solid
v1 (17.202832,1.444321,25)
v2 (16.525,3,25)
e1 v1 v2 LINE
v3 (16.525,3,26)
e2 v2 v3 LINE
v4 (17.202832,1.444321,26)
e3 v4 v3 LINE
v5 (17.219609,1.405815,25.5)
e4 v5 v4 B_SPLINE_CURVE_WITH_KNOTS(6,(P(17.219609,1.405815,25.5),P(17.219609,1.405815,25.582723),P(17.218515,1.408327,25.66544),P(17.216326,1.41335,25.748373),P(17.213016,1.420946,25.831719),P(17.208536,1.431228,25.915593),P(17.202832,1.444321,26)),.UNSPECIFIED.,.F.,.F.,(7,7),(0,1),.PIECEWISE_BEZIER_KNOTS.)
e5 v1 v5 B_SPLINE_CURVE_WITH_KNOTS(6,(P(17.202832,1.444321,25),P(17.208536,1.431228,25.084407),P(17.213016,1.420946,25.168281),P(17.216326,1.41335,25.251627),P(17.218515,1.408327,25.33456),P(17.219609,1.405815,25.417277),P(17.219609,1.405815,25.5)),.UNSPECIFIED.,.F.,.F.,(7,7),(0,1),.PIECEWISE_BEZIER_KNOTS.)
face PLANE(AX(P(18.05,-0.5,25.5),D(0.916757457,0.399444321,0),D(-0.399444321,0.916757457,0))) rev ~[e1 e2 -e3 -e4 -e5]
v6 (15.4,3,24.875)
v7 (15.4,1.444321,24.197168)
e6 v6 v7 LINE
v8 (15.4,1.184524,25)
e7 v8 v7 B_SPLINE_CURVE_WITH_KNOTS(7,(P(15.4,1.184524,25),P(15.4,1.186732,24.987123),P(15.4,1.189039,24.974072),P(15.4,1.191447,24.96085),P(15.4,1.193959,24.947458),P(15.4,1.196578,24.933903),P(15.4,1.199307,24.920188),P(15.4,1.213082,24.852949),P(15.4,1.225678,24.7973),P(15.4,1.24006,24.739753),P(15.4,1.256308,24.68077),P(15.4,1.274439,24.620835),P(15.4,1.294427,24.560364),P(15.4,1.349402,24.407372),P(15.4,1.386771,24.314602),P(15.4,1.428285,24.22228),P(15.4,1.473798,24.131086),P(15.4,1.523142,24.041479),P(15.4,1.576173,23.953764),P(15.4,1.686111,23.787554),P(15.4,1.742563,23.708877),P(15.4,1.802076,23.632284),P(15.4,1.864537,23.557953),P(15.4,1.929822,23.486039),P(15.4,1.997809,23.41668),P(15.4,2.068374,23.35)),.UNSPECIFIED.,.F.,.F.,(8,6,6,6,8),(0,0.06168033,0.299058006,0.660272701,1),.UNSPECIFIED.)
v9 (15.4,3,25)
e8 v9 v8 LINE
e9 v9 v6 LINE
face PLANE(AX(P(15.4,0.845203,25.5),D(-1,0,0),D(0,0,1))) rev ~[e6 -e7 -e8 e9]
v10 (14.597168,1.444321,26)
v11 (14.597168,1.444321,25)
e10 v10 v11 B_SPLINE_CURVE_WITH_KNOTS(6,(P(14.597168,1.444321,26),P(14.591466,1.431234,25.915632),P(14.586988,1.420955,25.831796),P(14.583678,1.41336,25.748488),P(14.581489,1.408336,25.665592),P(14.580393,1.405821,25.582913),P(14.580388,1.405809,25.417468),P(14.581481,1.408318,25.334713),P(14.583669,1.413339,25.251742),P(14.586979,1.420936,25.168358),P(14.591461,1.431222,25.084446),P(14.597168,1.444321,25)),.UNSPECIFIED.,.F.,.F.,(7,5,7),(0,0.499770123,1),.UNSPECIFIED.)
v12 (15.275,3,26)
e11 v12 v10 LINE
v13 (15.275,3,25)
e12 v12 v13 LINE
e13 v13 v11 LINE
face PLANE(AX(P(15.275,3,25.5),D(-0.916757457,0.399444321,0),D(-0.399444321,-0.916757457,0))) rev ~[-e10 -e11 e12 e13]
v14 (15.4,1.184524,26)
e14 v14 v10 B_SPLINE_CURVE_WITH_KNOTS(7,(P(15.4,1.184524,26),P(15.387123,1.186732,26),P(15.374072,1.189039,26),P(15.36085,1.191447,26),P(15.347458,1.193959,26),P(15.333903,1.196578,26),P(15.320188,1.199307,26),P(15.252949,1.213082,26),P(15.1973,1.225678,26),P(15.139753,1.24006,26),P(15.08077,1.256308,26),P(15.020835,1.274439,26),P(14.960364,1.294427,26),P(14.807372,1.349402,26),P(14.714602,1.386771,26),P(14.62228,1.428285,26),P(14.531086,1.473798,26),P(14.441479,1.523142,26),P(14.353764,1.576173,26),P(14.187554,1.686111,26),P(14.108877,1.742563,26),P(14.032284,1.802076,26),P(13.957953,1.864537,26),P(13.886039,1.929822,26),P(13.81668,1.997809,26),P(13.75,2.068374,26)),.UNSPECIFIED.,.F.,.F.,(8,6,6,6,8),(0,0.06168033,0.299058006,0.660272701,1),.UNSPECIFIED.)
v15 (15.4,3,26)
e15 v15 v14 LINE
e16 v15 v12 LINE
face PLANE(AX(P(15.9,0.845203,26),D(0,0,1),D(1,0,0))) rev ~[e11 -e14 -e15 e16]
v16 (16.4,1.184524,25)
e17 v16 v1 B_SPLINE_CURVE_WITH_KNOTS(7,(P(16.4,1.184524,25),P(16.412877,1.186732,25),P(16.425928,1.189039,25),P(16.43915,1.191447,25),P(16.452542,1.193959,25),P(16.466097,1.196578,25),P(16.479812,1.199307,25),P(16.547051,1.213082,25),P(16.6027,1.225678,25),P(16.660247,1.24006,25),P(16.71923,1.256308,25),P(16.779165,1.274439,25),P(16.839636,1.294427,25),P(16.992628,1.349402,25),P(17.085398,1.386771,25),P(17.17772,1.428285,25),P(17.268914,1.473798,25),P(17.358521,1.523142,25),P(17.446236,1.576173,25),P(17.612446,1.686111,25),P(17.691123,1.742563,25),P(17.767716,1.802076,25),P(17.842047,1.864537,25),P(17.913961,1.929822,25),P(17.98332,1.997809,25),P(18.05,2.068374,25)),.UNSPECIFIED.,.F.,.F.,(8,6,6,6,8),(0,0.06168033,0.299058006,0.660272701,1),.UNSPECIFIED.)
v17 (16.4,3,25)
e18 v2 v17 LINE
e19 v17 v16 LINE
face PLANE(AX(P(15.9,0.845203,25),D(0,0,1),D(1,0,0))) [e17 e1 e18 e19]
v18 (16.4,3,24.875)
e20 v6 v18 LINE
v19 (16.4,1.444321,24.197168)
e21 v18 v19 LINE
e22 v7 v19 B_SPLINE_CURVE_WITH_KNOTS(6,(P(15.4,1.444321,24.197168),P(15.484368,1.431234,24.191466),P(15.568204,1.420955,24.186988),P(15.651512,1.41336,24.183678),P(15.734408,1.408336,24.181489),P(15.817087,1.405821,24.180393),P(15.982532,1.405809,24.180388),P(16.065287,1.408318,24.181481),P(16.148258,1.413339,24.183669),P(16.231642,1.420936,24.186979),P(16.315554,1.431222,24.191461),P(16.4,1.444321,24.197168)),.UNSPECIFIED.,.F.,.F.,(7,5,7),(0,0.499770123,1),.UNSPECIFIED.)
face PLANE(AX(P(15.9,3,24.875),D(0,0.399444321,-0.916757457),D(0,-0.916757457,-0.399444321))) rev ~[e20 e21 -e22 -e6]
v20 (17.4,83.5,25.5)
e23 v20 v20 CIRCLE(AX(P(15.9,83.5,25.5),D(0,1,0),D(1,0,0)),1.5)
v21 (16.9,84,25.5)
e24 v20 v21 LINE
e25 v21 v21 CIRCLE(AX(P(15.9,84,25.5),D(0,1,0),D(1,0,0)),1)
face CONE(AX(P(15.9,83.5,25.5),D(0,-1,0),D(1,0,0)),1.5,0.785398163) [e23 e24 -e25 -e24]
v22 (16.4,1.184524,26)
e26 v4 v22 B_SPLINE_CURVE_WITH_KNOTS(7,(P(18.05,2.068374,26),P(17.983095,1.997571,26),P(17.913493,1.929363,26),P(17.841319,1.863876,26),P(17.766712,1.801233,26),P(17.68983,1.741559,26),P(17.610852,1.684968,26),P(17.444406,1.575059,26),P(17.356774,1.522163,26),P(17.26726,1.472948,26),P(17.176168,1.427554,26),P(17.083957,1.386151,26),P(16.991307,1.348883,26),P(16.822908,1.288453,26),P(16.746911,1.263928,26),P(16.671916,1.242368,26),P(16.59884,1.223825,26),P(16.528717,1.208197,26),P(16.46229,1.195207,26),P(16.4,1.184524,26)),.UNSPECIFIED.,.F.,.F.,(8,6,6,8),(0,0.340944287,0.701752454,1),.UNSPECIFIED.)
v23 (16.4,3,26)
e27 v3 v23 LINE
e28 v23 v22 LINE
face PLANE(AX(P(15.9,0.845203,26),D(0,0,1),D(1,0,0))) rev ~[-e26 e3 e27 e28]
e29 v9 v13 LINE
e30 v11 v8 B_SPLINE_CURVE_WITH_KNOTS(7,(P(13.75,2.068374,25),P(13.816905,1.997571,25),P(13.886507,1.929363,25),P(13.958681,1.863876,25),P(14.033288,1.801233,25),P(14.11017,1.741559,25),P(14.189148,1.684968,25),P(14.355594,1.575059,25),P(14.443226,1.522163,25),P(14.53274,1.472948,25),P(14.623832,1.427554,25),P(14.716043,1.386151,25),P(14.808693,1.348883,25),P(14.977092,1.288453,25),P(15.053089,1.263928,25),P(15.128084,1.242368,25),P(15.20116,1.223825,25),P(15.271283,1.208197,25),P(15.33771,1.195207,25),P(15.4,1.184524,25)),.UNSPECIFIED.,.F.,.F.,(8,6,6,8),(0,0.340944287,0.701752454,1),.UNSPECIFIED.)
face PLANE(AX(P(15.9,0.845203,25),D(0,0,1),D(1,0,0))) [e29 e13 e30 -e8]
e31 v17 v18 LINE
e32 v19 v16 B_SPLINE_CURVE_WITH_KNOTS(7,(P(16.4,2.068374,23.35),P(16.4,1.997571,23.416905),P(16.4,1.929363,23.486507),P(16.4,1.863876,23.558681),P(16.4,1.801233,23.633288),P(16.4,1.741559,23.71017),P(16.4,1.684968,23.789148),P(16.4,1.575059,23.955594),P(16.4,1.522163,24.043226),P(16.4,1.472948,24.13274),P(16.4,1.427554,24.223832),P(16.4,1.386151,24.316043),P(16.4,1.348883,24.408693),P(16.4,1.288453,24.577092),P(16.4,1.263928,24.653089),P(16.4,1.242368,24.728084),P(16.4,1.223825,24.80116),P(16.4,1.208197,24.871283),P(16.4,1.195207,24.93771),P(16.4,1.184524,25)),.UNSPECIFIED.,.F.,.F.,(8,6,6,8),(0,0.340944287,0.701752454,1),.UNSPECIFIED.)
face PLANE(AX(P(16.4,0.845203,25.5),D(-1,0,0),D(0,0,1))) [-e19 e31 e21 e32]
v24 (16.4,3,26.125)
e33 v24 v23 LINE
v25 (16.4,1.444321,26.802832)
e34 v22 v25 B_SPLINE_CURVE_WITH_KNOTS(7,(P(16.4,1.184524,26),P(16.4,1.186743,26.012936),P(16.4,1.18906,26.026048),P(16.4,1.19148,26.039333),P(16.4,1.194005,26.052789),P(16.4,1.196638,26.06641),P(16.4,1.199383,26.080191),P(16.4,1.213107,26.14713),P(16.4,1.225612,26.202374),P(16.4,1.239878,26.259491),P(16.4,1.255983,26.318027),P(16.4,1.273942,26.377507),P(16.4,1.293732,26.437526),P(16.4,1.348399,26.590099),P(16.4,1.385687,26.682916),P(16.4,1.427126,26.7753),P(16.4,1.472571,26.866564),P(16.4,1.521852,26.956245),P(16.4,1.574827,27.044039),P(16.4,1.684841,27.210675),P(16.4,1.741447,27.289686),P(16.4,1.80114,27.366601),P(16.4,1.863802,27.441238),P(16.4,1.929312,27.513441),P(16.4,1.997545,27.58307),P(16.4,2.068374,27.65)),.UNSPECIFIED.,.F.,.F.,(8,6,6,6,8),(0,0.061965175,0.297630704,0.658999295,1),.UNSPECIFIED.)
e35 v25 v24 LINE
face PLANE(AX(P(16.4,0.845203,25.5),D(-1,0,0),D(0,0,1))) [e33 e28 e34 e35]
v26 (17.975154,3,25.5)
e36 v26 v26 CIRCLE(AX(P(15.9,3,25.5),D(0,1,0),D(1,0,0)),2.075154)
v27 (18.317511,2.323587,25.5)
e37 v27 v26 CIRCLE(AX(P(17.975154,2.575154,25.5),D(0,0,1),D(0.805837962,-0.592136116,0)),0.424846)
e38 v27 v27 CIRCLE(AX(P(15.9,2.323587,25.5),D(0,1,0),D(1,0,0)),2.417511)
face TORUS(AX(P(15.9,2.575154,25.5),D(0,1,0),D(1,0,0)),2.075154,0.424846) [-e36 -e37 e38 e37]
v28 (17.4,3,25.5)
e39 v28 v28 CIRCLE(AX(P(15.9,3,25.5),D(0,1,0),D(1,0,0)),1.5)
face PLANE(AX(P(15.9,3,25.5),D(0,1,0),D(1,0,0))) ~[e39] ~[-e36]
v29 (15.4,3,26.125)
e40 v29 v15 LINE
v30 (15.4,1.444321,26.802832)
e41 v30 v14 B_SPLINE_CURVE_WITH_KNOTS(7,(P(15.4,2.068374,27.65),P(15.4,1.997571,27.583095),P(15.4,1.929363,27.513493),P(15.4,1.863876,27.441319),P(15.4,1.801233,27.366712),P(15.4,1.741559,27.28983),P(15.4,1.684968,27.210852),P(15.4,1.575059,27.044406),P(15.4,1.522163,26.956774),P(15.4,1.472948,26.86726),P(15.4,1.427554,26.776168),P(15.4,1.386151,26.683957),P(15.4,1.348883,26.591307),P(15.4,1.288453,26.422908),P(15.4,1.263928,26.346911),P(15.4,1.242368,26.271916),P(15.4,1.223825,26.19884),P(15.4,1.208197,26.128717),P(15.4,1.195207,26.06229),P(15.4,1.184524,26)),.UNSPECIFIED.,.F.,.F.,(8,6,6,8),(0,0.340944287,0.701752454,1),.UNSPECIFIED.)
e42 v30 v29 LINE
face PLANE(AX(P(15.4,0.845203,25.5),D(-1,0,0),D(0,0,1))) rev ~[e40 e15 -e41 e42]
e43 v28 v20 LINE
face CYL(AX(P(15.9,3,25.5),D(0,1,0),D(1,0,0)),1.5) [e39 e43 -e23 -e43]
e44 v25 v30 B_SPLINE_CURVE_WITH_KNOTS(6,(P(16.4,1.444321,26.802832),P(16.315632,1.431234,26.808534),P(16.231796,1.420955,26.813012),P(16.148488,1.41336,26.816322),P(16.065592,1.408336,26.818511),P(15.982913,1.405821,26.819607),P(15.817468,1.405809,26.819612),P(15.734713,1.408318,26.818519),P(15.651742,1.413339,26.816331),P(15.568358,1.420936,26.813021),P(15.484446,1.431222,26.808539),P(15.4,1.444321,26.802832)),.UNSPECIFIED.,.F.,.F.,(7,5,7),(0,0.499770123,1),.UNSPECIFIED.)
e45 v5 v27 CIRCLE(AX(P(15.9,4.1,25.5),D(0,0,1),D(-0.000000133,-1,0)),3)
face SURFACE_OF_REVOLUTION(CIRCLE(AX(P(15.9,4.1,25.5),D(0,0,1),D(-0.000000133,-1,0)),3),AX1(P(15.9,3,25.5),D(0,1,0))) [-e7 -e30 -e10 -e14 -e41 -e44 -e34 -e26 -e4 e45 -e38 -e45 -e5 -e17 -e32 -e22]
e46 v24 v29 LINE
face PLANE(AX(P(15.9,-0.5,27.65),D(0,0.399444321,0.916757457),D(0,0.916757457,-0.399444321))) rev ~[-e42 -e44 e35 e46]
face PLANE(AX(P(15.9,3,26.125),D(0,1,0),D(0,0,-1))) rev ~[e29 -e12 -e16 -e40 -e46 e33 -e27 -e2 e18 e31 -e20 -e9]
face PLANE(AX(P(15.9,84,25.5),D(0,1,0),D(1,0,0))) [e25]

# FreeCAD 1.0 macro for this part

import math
import FreeCAD as App
import Part
import Sketcher
from FreeCAD import Vector
Q = App.Units.Quantity

doc = App.newDocument("Part")
body = doc.addObject("PartDesign::Body", "Body")

# Sketch on XY plane
sketch1 = doc.addObject("Sketcher::SketchObject", "Sketch")
body.addObject(sketch1)
sketch1.AttachmentSupport = (doc.XY_Plane, [""])
sketch1.MapMode = "FlatFace"
sketch1.addGeometry([
    Part.LineSegment(Vector(-2.15, -3.5, 0), Vector(2.15, -3.5, 0)),
    Part.LineSegment(Vector(2.15, -3.5, 0), Vector(0.625, 0, 0)),
    Part.LineSegment(Vector(0.625, 0, 0), Vector(-0.625, 0, 0)),
    Part.LineSegment(Vector(-0.625, 0, 0), Vector(-2.15, -3.5, 0)),
], False)
sketch1.addConstraint([
    Sketcher.Constraint("Coincident", 0, 2, 1, 1),
    Sketcher.Constraint("Coincident", 1, 2, 2, 1),
    Sketcher.Constraint("Coincident", 2, 2, 3, 1),
    Sketcher.Constraint("Coincident", 3, 2, 0, 1),
    Sketcher.Constraint("Horizontal", 0),
    Sketcher.Constraint("Horizontal", 2),
    Sketcher.Constraint("Symmetric", 1, 2, 2, 2, -1, 1),
    Sketcher.Constraint("Equal", 1, 3),
    Sketcher.Constraint("DistanceX", 0, 1, 0, 2, Q("4.3 mm")),
    Sketcher.Constraint("DistanceX", 2, 2, 2, 1, Q("1.25 mm")),
    Sketcher.Constraint("DistanceY", 0, 2, -1, 1, Q("3.5 mm")),
])
pad1 = doc.addObject("PartDesign::Pad", "Pad")
body.addObject(pad1)
pad1.Profile = sketch1
pad1.Length = 1
pad1.Midplane = True
body2 = doc.addObject("PartDesign::Body", "Body001")
doc.recompute()

body.Placement = App.Placement(Vector(0, 0, 0), App.Rotation(Vector(0, -1, 0), 90))
boolean = doc.addObject("PartDesign::Boolean", "Boolean")
body2.addObject(boolean)
boolean.Type = "Fuse"
boolean.addObjects([body])
body3 = doc.addObject("PartDesign::Body", "Body002")

# Sketch on XY plane
sketch2 = doc.addObject("Sketcher::SketchObject", "Sketch001")
body3.addObject(sketch2)
sketch2.AttachmentSupport = (doc.getObject("XY_Plane002"), [""])
sketch2.MapMode = "FlatFace"
sketch2.addGeometry([
    Part.LineSegment(Vector(-2.15, -3.5, 0), Vector(2.15, -3.5, 0)),
    Part.LineSegment(Vector(2.15, -3.5, 0), Vector(0.625, 0, 0)),
    Part.LineSegment(Vector(0.625, 0, 0), Vector(-0.625, 0, 0)),
    Part.LineSegment(Vector(-0.625, 0, 0), Vector(-2.15, -3.5, 0)),
], False)
sketch2.addConstraint([
    Sketcher.Constraint("Coincident", 0, 2, 1, 1),
    Sketcher.Constraint("Coincident", 1, 2, 2, 1),
    Sketcher.Constraint("Coincident", 2, 2, 3, 1),
    Sketcher.Constraint("Coincident", 3, 2, 0, 1),
    Sketcher.Constraint("Horizontal", 0),
    Sketcher.Constraint("Horizontal", 2),
    Sketcher.Constraint("Symmetric", 1, 2, 2, 2, -1, 1),
    Sketcher.Constraint("Equal", 1, 3),
    Sketcher.Constraint("DistanceX", 0, 1, 0, 2, Q("4.3 mm")),
    Sketcher.Constraint("DistanceX", 2, 2, 2, 1, Q("1.25 mm")),
    Sketcher.Constraint("DistanceY", 0, 2, -1, 1, Q("3.5 mm")),
])
pad2 = doc.addObject("PartDesign::Pad", "Pad001")
body3.addObject(pad2)
pad2.Profile = sketch2
pad2.Length = 1
pad2.Midplane = True
doc.recompute()

boolean2 = doc.addObject("PartDesign::Boolean", "Boolean001")
body3.addObject(boolean2)
boolean2.Type = "Fuse"
boolean2.addObjects([body2])
body4 = doc.addObject("PartDesign::Body", "Body003")

# Sketch on XY plane
sketch3 = doc.addObject("Sketcher::SketchObject", "Sketch002")
body4.addObject(sketch3)
sketch3.AttachmentSupport = (doc.getObject("XY_Plane003"), [""])
sketch3.MapMode = "FlatFace"
sketch3.addGeometry([
    Part.LineSegment(Vector(1.5, 0, 0), Vector(1.5, 80.5, 0)),  # 0
    Part.LineSegment(Vector(1.5, 80.5, 0), Vector(1, 81, 0)),  # 1
    Part.LineSegment(Vector(1, 81, 0), Vector(0, 81, 0)),  # 2
    Part.LineSegment(Vector(0, 81, 0), Vector(0, -1.9, 0)),  # 3
    Part.ArcOfCircle(Part.Circle(Vector(0, 1.1, 0), Vector(0, 0, 1), 3), math.radians(-90.000008), math.radians(-36.308853)),  # 4
    Part.ArcOfCircle(Part.Circle(Vector(2.075154, -0.424846, 0), Vector(0, 0, 1), 0.424846), math.radians(-36.30874), math.radians(89.999972)),  # 5
    Part.LineSegment(Vector(2.075154, 0, 0), Vector(1.5, 0, 0)),  # 6
], False)
sketch3.addConstraint([
    Sketcher.Constraint("Coincident", 0, 2, 1, 1),
    Sketcher.Constraint("Coincident", 1, 2, 2, 1),
    Sketcher.Constraint("Coincident", 2, 2, 3, 1),
    Sketcher.Constraint("Coincident", 3, 2, 4, 1),
    Sketcher.Constraint("Tangent", 4, 2, 5, 1),
    Sketcher.Constraint("Tangent", 5, 2, 6, 1),
    Sketcher.Constraint("Coincident", 6, 2, 0, 1),
    Sketcher.Constraint("Vertical", 0),
    Sketcher.Constraint("Horizontal", 2),
    Sketcher.Constraint("Vertical", 3),
    Sketcher.Constraint("Horizontal", 6),
    Sketcher.Constraint("PointOnObject", 4, 3, -2),
    Sketcher.Constraint("PointOnObject", 2, 2, -2),
    Sketcher.Constraint("PointOnObject", 5, 2, -1),
    Sketcher.Constraint("Radius", 4, Q("3 mm")),
    Sketcher.Constraint("DistanceX", 2, 2, 2, 1, Q("1 mm")),
    Sketcher.Constraint("Angle", 1, Q("135 deg")),
    Sketcher.Constraint("DistanceY", 0, 1, 0, 2, Q("80.5 mm")),
    Sketcher.Constraint("DistanceY", 3, 2, 3, 1, Q("82.9 mm")),
    Sketcher.Constraint("DistanceY", -1, 1, 1, 2, Q("81 mm")),
    Sketcher.Constraint("Radius", 5, Q("0.424846 mm")),
])
revolution = doc.addObject("PartDesign::Revolution", "Revolution")
body4.addObject(revolution)
revolution.Profile = sketch3
revolution.ReferenceAxis = (sketch3, ["V_Axis"])
revolution.Angle = 360
doc.recompute()

boolean3 = doc.addObject("PartDesign::Boolean", "Boolean002")
body4.addObject(boolean3)
boolean3.Type = "Cut"
boolean3.addObjects([body3])
body5 = doc.addObject("PartDesign::Body", "Body004")
doc.recompute()

body4.Placement = App.Placement(Vector(-15.9, 3, 25.5), App.Rotation(Vector(0, 0, 1), 0))
boolean4 = doc.addObject("PartDesign::Boolean", "Boolean003")
body5.addObject(boolean4)
boolean4.Type = "Fuse"
boolean4.addObjects([body4])
body6 = doc.addObject("PartDesign::Body", "Body005")
doc.recompute()

body5.Placement = App.Placement(Vector(15.9, 0, -25.5), App.Rotation(Vector(0, 0, 1), 0))
boolean5 = doc.addObject("PartDesign::Boolean", "Boolean004")
body6.addObject(boolean5)
boolean5.Type = "Fuse"
boolean5.addObjects([body5])
body7 = doc.addObject("PartDesign::Body", "Body006")
doc.recompute()

body6.Placement = App.Placement(Vector(15.9, 0, 25.5), App.Rotation(Vector(0, 0, 1), 0))
boolean6 = doc.addObject("PartDesign::Boolean", "Boolean005")
body7.addObject(boolean6)
boolean6.Type = "Fuse"
boolean6.addObjects([body6])

doc.recompute()
